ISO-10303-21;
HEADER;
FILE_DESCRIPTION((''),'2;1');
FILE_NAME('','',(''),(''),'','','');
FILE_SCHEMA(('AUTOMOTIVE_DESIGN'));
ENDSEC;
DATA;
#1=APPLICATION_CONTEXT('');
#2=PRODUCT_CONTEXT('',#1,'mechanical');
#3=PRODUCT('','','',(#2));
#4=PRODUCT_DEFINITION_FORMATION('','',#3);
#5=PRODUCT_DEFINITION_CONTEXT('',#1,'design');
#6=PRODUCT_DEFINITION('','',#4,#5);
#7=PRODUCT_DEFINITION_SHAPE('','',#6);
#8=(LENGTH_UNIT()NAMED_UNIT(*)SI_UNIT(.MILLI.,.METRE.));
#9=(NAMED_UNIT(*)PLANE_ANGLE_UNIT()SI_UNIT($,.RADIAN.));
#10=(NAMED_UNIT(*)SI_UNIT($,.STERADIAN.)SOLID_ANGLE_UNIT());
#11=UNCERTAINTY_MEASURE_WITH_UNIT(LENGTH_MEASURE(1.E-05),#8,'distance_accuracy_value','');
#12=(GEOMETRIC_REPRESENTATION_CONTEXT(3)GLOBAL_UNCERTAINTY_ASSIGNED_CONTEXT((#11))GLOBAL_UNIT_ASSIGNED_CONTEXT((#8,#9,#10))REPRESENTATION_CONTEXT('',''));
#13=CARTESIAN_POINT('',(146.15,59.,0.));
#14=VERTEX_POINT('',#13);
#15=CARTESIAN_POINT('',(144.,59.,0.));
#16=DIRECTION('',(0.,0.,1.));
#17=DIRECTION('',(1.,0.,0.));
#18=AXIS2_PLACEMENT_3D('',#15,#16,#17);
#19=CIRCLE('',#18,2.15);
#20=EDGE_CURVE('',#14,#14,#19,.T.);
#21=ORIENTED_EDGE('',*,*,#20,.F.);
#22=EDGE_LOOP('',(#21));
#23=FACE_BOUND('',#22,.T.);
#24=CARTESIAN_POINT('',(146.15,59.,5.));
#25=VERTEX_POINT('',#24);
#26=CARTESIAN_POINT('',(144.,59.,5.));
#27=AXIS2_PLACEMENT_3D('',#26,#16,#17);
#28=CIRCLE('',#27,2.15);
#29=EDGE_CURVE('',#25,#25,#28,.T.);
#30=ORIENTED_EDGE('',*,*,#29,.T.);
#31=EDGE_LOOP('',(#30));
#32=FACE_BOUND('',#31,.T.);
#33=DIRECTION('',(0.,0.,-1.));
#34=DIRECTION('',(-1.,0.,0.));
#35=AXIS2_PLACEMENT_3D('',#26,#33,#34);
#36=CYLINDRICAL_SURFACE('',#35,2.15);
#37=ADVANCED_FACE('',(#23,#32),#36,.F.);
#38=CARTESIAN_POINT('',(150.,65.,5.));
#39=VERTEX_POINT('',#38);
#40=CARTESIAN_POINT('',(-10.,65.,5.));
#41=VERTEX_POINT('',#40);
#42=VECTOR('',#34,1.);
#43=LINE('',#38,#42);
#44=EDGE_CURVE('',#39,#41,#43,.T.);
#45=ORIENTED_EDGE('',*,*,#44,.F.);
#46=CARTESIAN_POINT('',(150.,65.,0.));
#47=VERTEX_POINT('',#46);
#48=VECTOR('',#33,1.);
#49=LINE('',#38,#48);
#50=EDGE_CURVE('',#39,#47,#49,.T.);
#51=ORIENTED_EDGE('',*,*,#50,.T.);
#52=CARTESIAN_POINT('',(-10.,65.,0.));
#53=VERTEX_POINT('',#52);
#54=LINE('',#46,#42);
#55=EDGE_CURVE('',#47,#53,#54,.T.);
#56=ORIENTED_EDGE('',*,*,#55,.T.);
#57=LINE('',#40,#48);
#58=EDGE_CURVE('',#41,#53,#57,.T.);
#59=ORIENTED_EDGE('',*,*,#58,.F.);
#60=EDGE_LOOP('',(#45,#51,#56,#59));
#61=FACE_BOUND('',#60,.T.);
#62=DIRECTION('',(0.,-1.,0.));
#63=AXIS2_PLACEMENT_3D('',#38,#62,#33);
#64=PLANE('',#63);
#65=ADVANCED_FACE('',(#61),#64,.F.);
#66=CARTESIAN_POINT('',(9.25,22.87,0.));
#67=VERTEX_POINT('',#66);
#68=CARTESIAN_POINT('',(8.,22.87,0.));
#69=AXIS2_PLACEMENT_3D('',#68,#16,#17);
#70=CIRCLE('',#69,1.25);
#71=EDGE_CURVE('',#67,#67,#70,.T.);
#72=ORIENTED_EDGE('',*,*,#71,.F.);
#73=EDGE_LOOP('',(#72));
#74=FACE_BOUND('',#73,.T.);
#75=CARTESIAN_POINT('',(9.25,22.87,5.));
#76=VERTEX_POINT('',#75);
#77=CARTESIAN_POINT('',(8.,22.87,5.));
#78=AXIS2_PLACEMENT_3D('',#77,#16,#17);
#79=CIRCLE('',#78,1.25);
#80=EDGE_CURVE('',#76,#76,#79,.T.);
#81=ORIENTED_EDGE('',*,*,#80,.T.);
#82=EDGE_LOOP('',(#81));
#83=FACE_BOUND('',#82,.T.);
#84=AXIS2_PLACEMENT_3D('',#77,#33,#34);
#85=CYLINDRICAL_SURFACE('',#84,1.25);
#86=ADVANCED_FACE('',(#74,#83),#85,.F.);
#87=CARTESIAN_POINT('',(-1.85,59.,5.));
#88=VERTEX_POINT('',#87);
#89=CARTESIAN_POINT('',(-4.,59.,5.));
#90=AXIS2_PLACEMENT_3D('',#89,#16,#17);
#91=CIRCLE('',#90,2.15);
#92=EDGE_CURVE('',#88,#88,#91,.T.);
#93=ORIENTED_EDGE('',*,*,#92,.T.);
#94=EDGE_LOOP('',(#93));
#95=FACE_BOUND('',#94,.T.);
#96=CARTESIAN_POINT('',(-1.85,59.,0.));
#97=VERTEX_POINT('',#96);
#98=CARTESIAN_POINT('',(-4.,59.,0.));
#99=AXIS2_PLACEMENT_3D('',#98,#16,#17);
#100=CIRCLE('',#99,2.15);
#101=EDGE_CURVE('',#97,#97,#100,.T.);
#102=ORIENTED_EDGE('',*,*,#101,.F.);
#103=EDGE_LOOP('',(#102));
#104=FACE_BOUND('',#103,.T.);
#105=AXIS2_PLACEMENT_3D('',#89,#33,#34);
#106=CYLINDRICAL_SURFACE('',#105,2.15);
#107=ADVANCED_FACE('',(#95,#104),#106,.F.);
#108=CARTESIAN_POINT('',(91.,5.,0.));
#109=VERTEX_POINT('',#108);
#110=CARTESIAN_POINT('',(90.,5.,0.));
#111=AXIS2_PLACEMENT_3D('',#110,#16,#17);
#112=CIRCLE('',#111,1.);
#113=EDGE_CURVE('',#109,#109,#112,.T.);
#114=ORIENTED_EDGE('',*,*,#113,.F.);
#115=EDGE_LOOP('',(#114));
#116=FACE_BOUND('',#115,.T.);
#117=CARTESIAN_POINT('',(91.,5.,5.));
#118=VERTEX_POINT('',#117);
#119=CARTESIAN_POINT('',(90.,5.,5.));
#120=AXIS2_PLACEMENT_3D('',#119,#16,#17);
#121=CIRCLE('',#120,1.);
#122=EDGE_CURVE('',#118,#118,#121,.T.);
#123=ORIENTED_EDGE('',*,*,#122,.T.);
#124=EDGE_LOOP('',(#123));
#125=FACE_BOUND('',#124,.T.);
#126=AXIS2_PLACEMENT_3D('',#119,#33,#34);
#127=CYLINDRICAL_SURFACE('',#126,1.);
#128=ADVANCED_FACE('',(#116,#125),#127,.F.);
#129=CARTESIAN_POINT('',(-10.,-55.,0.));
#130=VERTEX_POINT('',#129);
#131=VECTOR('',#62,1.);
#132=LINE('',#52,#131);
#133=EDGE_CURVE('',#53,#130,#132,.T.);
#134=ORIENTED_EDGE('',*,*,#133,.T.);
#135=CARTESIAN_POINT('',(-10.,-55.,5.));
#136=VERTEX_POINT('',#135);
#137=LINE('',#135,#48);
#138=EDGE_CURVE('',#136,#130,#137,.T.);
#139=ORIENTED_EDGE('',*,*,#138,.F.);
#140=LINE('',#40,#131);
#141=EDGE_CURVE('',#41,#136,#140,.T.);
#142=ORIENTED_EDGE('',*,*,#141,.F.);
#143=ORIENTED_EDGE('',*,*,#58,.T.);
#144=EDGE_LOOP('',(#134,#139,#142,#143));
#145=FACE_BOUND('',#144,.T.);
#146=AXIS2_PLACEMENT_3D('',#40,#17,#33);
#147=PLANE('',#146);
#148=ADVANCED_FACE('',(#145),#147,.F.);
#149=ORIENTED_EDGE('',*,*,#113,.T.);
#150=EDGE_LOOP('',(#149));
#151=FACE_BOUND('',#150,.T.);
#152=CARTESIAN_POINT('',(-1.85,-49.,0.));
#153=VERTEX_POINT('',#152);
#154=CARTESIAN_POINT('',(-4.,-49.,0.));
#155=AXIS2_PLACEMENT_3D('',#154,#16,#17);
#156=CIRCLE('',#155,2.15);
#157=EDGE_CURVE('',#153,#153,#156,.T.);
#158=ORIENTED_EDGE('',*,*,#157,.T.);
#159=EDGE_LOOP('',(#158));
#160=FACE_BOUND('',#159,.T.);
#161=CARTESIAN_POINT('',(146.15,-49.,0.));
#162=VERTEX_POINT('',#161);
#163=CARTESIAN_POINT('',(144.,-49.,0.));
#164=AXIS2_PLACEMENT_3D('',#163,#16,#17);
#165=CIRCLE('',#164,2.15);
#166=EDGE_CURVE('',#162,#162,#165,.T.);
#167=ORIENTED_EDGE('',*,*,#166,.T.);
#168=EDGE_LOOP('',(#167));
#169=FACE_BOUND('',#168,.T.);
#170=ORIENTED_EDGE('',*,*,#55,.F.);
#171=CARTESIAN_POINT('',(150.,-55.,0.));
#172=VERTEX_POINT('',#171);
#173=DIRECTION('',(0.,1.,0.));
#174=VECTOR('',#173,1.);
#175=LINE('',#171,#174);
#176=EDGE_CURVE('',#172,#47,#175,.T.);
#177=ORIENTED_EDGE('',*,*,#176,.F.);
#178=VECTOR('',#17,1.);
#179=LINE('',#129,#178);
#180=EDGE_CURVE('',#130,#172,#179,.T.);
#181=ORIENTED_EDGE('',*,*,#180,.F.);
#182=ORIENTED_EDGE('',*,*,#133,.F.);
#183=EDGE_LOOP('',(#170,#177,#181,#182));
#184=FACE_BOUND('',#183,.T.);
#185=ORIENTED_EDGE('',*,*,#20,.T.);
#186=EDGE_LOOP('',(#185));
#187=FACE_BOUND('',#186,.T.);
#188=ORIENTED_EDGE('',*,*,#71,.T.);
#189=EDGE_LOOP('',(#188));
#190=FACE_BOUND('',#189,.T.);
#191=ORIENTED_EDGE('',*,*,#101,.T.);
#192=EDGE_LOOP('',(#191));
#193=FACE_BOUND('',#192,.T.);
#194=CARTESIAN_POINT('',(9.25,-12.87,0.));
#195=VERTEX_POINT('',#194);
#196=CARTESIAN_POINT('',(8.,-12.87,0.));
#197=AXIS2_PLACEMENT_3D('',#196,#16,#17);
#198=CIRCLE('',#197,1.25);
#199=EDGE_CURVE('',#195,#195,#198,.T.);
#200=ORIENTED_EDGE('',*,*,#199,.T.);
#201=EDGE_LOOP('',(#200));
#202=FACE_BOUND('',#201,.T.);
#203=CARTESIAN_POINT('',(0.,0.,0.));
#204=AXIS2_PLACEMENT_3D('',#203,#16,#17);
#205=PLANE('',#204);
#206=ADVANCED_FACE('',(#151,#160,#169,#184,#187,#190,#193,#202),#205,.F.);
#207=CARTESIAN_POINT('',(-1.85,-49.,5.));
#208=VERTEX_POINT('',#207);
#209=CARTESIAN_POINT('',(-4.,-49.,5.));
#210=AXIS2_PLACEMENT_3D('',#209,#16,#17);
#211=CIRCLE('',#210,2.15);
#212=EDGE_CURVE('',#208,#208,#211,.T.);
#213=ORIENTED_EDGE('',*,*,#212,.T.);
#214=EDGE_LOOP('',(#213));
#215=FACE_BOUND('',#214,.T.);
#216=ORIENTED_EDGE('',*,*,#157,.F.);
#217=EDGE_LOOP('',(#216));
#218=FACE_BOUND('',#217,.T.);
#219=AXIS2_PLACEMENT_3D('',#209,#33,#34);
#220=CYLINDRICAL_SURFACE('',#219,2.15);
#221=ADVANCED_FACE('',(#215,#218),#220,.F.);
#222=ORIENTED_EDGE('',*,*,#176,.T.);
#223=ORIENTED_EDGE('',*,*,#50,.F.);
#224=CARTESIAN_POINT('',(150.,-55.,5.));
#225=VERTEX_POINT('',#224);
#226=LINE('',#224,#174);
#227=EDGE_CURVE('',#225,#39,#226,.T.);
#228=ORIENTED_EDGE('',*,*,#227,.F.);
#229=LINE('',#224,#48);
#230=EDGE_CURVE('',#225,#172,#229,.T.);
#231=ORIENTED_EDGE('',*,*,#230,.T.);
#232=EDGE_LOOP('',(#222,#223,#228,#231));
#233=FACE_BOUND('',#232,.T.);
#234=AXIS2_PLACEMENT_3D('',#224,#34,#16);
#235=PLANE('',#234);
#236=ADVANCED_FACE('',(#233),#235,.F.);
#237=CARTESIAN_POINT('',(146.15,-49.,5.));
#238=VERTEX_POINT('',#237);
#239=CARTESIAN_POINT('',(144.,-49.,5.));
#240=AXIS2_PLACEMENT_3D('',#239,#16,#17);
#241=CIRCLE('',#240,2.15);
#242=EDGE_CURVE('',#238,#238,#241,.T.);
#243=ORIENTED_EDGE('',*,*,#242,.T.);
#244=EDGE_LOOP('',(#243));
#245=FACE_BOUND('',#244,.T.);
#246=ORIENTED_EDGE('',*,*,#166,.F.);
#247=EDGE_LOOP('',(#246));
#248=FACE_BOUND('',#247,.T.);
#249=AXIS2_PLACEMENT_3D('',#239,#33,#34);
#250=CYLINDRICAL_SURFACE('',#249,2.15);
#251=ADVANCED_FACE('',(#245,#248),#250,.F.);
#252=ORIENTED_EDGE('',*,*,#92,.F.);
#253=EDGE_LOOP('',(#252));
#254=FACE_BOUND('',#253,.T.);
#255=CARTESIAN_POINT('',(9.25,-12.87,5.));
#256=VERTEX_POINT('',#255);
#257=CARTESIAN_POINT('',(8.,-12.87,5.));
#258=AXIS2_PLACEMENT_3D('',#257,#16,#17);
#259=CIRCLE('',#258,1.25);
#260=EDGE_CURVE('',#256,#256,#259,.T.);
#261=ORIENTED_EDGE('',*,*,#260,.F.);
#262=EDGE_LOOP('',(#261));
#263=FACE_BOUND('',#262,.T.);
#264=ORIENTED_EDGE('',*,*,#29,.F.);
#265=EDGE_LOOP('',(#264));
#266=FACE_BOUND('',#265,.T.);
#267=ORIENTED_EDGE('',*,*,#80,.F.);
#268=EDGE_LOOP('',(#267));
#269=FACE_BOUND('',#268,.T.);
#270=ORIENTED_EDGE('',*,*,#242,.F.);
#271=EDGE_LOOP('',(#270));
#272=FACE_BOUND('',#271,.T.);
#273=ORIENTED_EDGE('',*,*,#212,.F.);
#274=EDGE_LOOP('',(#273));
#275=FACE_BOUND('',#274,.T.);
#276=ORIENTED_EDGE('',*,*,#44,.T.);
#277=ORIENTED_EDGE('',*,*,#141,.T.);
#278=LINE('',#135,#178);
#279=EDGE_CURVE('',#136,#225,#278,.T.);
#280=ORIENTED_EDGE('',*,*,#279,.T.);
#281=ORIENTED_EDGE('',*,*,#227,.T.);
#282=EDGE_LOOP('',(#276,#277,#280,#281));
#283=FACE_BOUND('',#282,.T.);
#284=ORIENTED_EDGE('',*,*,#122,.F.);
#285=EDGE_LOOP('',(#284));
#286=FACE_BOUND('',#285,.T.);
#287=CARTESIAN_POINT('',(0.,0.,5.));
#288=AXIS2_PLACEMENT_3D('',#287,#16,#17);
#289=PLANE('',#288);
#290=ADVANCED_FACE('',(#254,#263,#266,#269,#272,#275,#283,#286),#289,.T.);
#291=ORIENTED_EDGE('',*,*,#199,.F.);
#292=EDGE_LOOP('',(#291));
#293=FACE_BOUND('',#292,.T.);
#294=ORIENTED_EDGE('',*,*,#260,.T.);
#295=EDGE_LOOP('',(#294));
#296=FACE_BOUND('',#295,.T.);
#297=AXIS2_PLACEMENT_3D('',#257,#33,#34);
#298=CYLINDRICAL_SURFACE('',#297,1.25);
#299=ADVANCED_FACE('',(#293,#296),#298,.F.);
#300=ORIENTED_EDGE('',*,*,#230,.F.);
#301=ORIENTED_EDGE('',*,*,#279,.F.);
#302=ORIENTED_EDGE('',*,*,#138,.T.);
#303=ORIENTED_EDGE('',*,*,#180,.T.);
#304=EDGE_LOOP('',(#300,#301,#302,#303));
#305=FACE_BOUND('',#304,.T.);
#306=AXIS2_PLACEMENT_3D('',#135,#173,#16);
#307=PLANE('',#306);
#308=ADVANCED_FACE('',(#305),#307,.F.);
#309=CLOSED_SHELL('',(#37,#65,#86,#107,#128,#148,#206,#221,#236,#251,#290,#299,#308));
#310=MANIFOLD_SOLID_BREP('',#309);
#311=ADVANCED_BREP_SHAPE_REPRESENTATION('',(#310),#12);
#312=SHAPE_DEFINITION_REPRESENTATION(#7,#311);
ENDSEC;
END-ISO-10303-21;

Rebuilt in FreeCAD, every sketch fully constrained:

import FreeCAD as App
import Part
import Sketcher
Q = App.Units.Quantity


def add_polygon(sketch, points):
    """Adds a closed chain of lines whose ends are joined by coincident constraints."""
    first, n = sketch.GeometryCount, len(points)
    for a, b in zip(points, points[1:] + points[:1]):
        sketch.addGeometry(Part.LineSegment(App.Vector(*a, 0), App.Vector(*b, 0)), False)
    for i in range(n):
        sketch.addConstraint(Sketcher.Constraint("Coincident", first + i, 2, first + (i + 1) % n, 1))

doc = App.newDocument("Part")
params = doc.addObject("Spreadsheet::Sheet", "Params")
for row, (alias, value) in enumerate([
    ("sketch1_diameter", "2 mm"),
    ("sketch1_diameter2", "4.3 mm"),
    ("sketch1_diameter3", "2.5 mm"),
    ("sketch1_width", "160 mm"),
    ("sketch1_height", "120 mm"),
    ("pad1_length", "5 mm"),
], start=1):
    params.set(f"A{row}", alias)
    params.set(f"B{row}", "=" + value)
    params.setAlias(f"B{row}", alias)

body = doc.addObject("PartDesign::Body", "Body")

sketch1 = body.newObject("Sketcher::SketchObject", "Sketch")
sketch1.AttachmentSupport = (doc.getObject("XY_Plane"), [""])
sketch1.MapMode = "FlatFace"
add_polygon(sketch1, [(-10, 65), (-10, -55), (150, -55), (150, 65)])
sketch1.addGeometry(Part.Circle(App.Vector(-4, -49, 0), App.Vector(0, 0, 1), 2.1), False)
sketch1.addGeometry(Part.Circle(App.Vector(8, -12.9, 0), App.Vector(0, 0, 1), 1.2), False)
sketch1.addGeometry(Part.Circle(App.Vector(144, -49, 0), App.Vector(0, 0, 1), 2.1), False)
sketch1.addGeometry(Part.Circle(App.Vector(8, 22.9, 0), App.Vector(0, 0, 1), 1.2), False)
sketch1.addGeometry(Part.Circle(App.Vector(-4, 59, 0), App.Vector(0, 0, 1), 2.1), False)
sketch1.addGeometry(Part.Circle(App.Vector(90, 5, 0), App.Vector(0, 0, 1), 1), False)
sketch1.addGeometry(Part.Circle(App.Vector(144, 59, 0), App.Vector(0, 0, 1), 2.1), False)
sketch1.addConstraint(Sketcher.Constraint("Vertical", 0))
sketch1.addConstraint(Sketcher.Constraint("Horizontal", 1))
sketch1.addConstraint(Sketcher.Constraint("Vertical", 2))
sketch1.addConstraint(Sketcher.Constraint("Horizontal", 3))
sketch1.addConstraint(Sketcher.Constraint("Equal", 4, 6))
sketch1.addConstraint(Sketcher.Constraint("Equal", 5, 7))
sketch1.addConstraint(Sketcher.Constraint("Equal", 6, 8))
sketch1.addConstraint(Sketcher.Constraint("Equal", 8, 10))
sketch1.addConstraint(Sketcher.Constraint("Horizontal", 4, 3, 6, 3))
sketch1.addConstraint(Sketcher.Constraint("Horizontal", 8, 3, 10, 3))
sketch1.addConstraint(Sketcher.Constraint("Vertical", 5, 3, 7, 3))
sketch1.addConstraint(Sketcher.Constraint("Vertical", 4, 3, 8, 3))
sketch1.addConstraint(Sketcher.Constraint("Vertical", 6, 3, 10, 3))
sketch1.addConstraint(Sketcher.Constraint("Diameter", 9, Q("2 mm")))
sketch1.addConstraint(Sketcher.Constraint("Diameter", 4, Q("4.3 mm")))
sketch1.addConstraint(Sketcher.Constraint("Diameter", 5, Q("2.5 mm")))
sketch1.addConstraint(Sketcher.Constraint("DistanceX", 1, 1, 1, 2, Q("160 mm")))
sketch1.addConstraint(Sketcher.Constraint("DistanceY", 0, 2, 0, 1, Q("120 mm")))
sketch1.addConstraint(Sketcher.Constraint("DistanceX", 4, 3, -1, 1, Q("4 mm")))
sketch1.addConstraint(Sketcher.Constraint("DistanceY", 4, 3, -1, 1, Q("49 mm")))
sketch1.addConstraint(Sketcher.Constraint("DistanceX", -1, 1, 5, 3, Q("8 mm")))
sketch1.addConstraint(Sketcher.Constraint("DistanceX", -1, 1, 6, 3, Q("144 mm")))
sketch1.addConstraint(Sketcher.Constraint("DistanceY", -1, 1, 8, 3, Q("59 mm")))
sketch1.addConstraint(Sketcher.Constraint("DistanceX", -1, 1, 9, 3, Q("90 mm")))
sketch1.addConstraint(Sketcher.Constraint("DistanceY", -1, 1, 9, 3, Q("5 mm")))
sketch1.addConstraint(Sketcher.Constraint("DistanceX", 0, 2, -1, 1, Q("10 mm")))
sketch1.addConstraint(Sketcher.Constraint("DistanceY", 0, 2, -1, 1, Q("55 mm")))
sketch1.addConstraint(Sketcher.Constraint("DistanceY", 5, 3, -1, 1, Q("12.87 mm")))
sketch1.addConstraint(Sketcher.Constraint("DistanceY", -1, 1, 7, 3, Q("22.87 mm")))
sketch1.setExpression("Constraints[17]", "Params.sketch1_diameter")
sketch1.setExpression("Constraints[18]", "Params.sketch1_diameter2")
sketch1.setExpression("Constraints[19]", "Params.sketch1_diameter3")
sketch1.setExpression("Constraints[20]", "Params.sketch1_width")
sketch1.setExpression("Constraints[21]", "Params.sketch1_height")
pad1 = body.newObject("PartDesign::Pad", "Pad")
pad1.Profile = sketch1
pad1.setExpression("Length", "Params.pad1_length")

doc.recompute()
